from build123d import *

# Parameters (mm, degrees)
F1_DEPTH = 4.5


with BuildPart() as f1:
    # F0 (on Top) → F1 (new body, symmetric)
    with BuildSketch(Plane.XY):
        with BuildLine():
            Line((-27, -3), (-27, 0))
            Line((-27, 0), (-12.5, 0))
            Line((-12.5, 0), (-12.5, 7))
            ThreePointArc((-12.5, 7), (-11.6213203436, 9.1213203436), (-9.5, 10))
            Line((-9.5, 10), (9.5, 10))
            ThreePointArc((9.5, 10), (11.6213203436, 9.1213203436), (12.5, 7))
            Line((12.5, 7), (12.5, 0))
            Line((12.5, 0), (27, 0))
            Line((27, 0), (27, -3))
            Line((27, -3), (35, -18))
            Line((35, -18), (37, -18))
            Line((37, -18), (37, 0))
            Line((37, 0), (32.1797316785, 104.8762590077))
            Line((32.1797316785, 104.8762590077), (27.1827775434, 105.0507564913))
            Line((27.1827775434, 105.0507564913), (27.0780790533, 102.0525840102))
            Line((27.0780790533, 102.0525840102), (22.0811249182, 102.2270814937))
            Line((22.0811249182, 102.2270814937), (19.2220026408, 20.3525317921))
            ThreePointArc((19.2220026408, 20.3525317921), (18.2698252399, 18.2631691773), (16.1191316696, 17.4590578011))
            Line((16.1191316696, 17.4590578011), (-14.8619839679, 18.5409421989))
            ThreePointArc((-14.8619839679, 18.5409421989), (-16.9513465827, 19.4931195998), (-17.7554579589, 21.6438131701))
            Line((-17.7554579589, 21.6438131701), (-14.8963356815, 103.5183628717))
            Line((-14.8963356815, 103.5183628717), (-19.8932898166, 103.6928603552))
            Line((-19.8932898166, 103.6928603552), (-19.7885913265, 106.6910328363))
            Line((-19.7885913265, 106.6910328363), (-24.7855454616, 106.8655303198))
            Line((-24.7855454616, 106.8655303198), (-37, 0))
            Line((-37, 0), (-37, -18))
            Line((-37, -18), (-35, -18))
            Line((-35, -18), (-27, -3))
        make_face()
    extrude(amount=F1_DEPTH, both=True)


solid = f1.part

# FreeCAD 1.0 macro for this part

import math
import FreeCAD as App
import Part
import Sketcher
from FreeCAD import Vector
Q = App.Units.Quantity

doc = App.newDocument("Part")
body = doc.addObject("PartDesign::Body", "Body")

# Sketch on XY plane
sketch1 = body.newObject("Sketcher::SketchObject", "Sketch")
sketch1.AttachmentSupport = (doc.getObject("XY_Plane"), [""])
sketch1.MapMode = "FlatFace"
sketch1.addGeometry([
    Part.LineSegment(Vector(-27, -3, 0), Vector(-27, 0, 0)),  # 0
    Part.LineSegment(Vector(-27, 0, 0), Vector(-12.5, 0, 0)),  # 1
    Part.LineSegment(Vector(-12.5, 0, 0), Vector(-12.5, 7, 0)),  # 2
    Part.ArcOfCircle(Part.Circle(Vector(-9.5, 7, 0), Vector(0, 0, 1), 3), math.radians(90), math.radians(180)),  # 3
    Part.LineSegment(Vector(-9.5, 10, 0), Vector(9.5, 10, 0)),  # 4
    Part.ArcOfCircle(Part.Circle(Vector(9.5, 7, 0), Vector(0, 0, 1), 3), math.radians(0), math.radians(90)),  # 5
    Part.LineSegment(Vector(12.5, 7, 0), Vector(12.5, 0, 0)),  # 6
    Part.LineSegment(Vector(12.5, 0, 0), Vector(27, 0, 0)),  # 7
    Part.LineSegment(Vector(27, 0, 0), Vector(27, -3, 0)),  # 8
    Part.LineSegment(Vector(27, -3, 0), Vector(35, -18, 0)),  # 9
    Part.LineSegment(Vector(35, -18, 0), Vector(37, -18, 0)),  # 10
    Part.LineSegment(Vector(37, -18, 0), Vector(37, 0, 0)),  # 11
    Part.LineSegment(Vector(37, 0, 0), Vector(32.2, 104.9, 0)),  # 12
    Part.LineSegment(Vector(32.2, 104.9, 0), Vector(27.2, 105.1, 0)),  # 13
    Part.LineSegment(Vector(27.2, 105.1, 0), Vector(27.1, 102.1, 0)),  # 14
    Part.LineSegment(Vector(27.1, 102.1, 0), Vector(22.1, 102.2, 0)),  # 15
    Part.LineSegment(Vector(22.1, 102.2, 0), Vector(19.2, 20.4, 0)),  # 16
    Part.ArcOfCircle(Part.Circle(Vector(16.2, 20.5, 0), Vector(0, 0, 1), 3), math.radians(-92), math.radians(-2)),  # 17
    Part.LineSegment(Vector(16.1, 17.5, 0), Vector(-14.9, 18.5, 0)),  # 18
    Part.ArcOfCircle(Part.Circle(Vector(-14.8, 21.5, 0), Vector(0, 0, 1), 3), math.radians(178), math.radians(268)),  # 19
    Part.LineSegment(Vector(-17.8, 21.6, 0), Vector(-14.9, 103.5, 0)),  # 20
    Part.LineSegment(Vector(-14.9, 103.5, 0), Vector(-19.9, 103.7, 0)),  # 21
    Part.LineSegment(Vector(-19.9, 103.7, 0), Vector(-19.8, 106.7, 0)),  # 22
    Part.LineSegment(Vector(-19.8, 106.7, 0), Vector(-24.8, 106.9, 0)),  # 23
    Part.LineSegment(Vector(-24.8, 106.9, 0), Vector(-37, 0, 0)),  # 24
    Part.LineSegment(Vector(-37, 0, 0), Vector(-37, -18, 0)),  # 25
    Part.LineSegment(Vector(-37, -18, 0), Vector(-35, -18, 0)),  # 26
    Part.LineSegment(Vector(-35, -18, 0), Vector(-27, -3, 0)),  # 27
], False)
sketch1.addConstraint([
    Sketcher.Constraint("Coincident", 0, 2, 1, 1),
    Sketcher.Constraint("Coincident", 1, 2, 2, 1),
    Sketcher.Constraint("Tangent", 2, 2, 3, 2),
    Sketcher.Constraint("Tangent", 3, 1, 4, 1),
    Sketcher.Constraint("Tangent", 4, 2, 5, 2),
    Sketcher.Constraint("Tangent", 5, 1, 6, 1),
    Sketcher.Constraint("Coincident", 6, 2, 7, 1),
    Sketcher.Constraint("Coincident", 7, 2, 8, 1),
    Sketcher.Constraint("Coincident", 8, 2, 9, 1),
    Sketcher.Constraint("Coincident", 9, 2, 10, 1),
    Sketcher.Constraint("Coincident", 10, 2, 11, 1),
    Sketcher.Constraint("Coincident", 11, 2, 12, 1),
    Sketcher.Constraint("Coincident", 12, 2, 13, 1),
    Sketcher.Constraint("Coincident", 13, 2, 14, 1),
    Sketcher.Constraint("Coincident", 14, 2, 15, 1),
    Sketcher.Constraint("Coincident", 15, 2, 16, 1),
    Sketcher.Constraint("Tangent", 16, 2, 17, 2),
    Sketcher.Constraint("Tangent", 17, 1, 18, 1),
    Sketcher.Constraint("Tangent", 18, 2, 19, 2),
    Sketcher.Constraint("Tangent", 19, 1, 20, 1),
    Sketcher.Constraint("Coincident", 20, 2, 21, 1),
    Sketcher.Constraint("Coincident", 21, 2, 22, 1),
    Sketcher.Constraint("Coincident", 22, 2, 23, 1),
    Sketcher.Constraint("Coincident", 23, 2, 24, 1),
    Sketcher.Constraint("Coincident", 24, 2, 25, 1),
    Sketcher.Constraint("Coincident", 25, 2, 26, 1),
    Sketcher.Constraint("Coincident", 26, 2, 27, 1),
    Sketcher.Constraint("Coincident", 27, 2, 0, 1),
    Sketcher.Constraint("Vertical", 0),
    Sketcher.Constraint("Horizontal", 1),
    Sketcher.Constraint("Vertical", 2),
    Sketcher.Constraint("Horizontal", 4),
    Sketcher.Constraint("Vertical", 6),
    Sketcher.Constraint("Horizontal", 7),
    Sketcher.Constraint("Vertical", 8),
    Sketcher.Constraint("Horizontal", 10),
    Sketcher.Constraint("Vertical", 11),
    Sketcher.Constraint("Vertical", 25),
    Sketcher.Constraint("Horizontal", 26),
    Sketcher.Constraint("Equal", 3, 5),
    Sketcher.Constraint("Equal", 5, 17),
    Sketcher.Constraint("Equal", 17, 19),
    Sketcher.Constraint("Symmetric", 1, 2, 6, 2, -1, 1),
    Sketcher.Constraint("Symmetric", 11, 2, 24, 2, -1, 1),
    Sketcher.Constraint("Symmetric", 0, 2, 7, 2, -2),
    Sketcher.Constraint("Symmetric", 9, 2, 26, 2, -2),
    Sketcher.Constraint("PointOnObject", 11, 2, -1),
    Sketcher.Constraint("Perpendicular", 13, 14),
    Sketcher.Constraint("Perpendicular", 14, 15),
    Sketcher.Constraint("Perpendicular", 15, 16),
    Sketcher.Constraint("Perpendicular", 16, 18),
    Sketcher.Constraint("Perpendicular", 18, 20),
    Sketcher.Constraint("Perpendicular", 20, 21),
    Sketcher.Constraint("Perpendicular", 21, 22),
    Sketcher.Constraint("Perpendicular", 22, 23),
    Sketcher.Constraint("Horizontal", 8, 2, 27, 2),
    Sketcher.Constraint("Equal", 13, 15),
    Sketcher.Constraint("Equal", 16, 20),
    Sketcher.Constraint("Equal", 15, 21),
    Sketcher.Constraint("Equal", 14, 22),
    Sketcher.Constraint("Equal", 21, 23),
    Sketcher.Constraint("Radius", 3, 3.0),
    Sketcher.Constraint("DistanceX", 4, 1, 4, 2, 19.0),
    Sketcher.Constraint("DistanceX", 10, 1, 10, 2, 2.0),
    Sketcher.Constraint("DistanceY", 0, 1, 0, 2, 3.0),
    Sketcher.Constraint("DistanceY", 2, 1, 2, 2, 7.0),
    Sketcher.Constraint("DistanceY", 11, 1, 11, 2, 18.0),
    Sketcher.Constraint("Angle", 13, Q("178 deg")),
    Sketcher.Constraint("Distance", 9, 17.0),
    Sketcher.Constraint("Distance", 13, 5.0),
    Sketcher.Constraint("Distance", 14, 3.0),
    Sketcher.Constraint("Distance", 18, 31.0),
    Sketcher.Constraint("DistanceX", 1, 1, 1, 2, 14.5),
    Sketcher.Constraint("DistanceX", 17, 3, 12, 2, 15.955902),
    Sketcher.Constraint("DistanceX", -1, 1, 17, 3, 16.22383),
    Sketcher.Constraint("DistanceY", -1, 1, 17, 3, 20.45723),
])
pad1 = body.newObject("PartDesign::Pad", "Pad")
pad1.Profile = sketch1
pad1.Length = 9
pad1.Midplane = True

doc.recompute()
